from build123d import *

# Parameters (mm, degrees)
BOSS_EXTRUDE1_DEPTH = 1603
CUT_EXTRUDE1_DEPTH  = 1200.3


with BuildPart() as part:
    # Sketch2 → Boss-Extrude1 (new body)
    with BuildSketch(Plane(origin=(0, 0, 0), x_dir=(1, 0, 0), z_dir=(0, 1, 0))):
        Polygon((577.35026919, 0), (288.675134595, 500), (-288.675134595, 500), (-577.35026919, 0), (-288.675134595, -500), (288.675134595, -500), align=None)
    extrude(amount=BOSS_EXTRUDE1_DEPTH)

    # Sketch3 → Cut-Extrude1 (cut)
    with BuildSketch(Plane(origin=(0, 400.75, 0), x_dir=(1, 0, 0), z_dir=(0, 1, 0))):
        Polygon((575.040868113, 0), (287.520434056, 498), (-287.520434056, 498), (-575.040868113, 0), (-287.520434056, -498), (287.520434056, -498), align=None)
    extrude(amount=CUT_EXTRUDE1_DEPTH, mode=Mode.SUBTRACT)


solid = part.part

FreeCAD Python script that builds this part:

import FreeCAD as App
import Part
import Sketcher
from FreeCAD import Vector
Q = App.Units.Quantity


def add_polygon(sketch, points):
    """Adds a closed chain of lines whose ends are joined by coincident constraints."""
    first, n = sketch.GeometryCount, len(points)
    for a, b in zip(points, points[1:] + points[:1]):
        sketch.addGeometry(Part.LineSegment(App.Vector(*a, 0), App.Vector(*b, 0)), False)
    for i in range(n):
        sketch.addConstraint(Sketcher.Constraint("Coincident", first + i, 2, first + (i + 1) % n, 1))

doc = App.newDocument("Part")
body = doc.addObject("PartDesign::Body", "Body")

sketch1 = body.newObject("Sketcher::SketchObject", "Sketch")
sketch1.AttachmentSupport = (doc.getObject("XZ_Plane"), [""])
sketch1.MapMode = "FlatFace"
add_polygon(sketch1, [(577, 0), (289, -500), (-289, -500), (-577, 0), (-289, 500), (289, 500)])
sketch1.addConstraint(Sketcher.Constraint("Horizontal", 1))
sketch1.addConstraint(Sketcher.Constraint("Horizontal", 4))
sketch1.addConstraint(Sketcher.Constraint("Symmetric", 0, 2, 3, 2, -1, 1))
sketch1.addConstraint(Sketcher.Constraint("Symmetric", 2, 2, 5, 2, -1, 1))
sketch1.addConstraint(Sketcher.Constraint("PointOnObject", 2, 2, -1))
sketch1.addConstraint(Sketcher.Constraint("Parallel", 2, 5))
sketch1.addConstraint(Sketcher.Constraint("Vertical", 1, 2, 3, 2))
sketch1.addConstraint(Sketcher.Constraint("Angle", 0, Q("-120 deg")))
sketch1.addConstraint(Sketcher.Constraint("DistanceY", 0, 2, -1, 1, 500.0))
sketch1.addConstraint(Sketcher.Constraint("DistanceX", 1, 2, 1, 1, 577.350269))
pad1 = body.newObject("PartDesign::Pad", "Pad")
pad1.Profile = sketch1
pad1.Length = 1603
pad1.Reversed = True

sketch2 = body.newObject("Sketcher::SketchObject", "Sketch001")
sketch2.AttachmentSupport = (doc.getObject("XZ_Plane"), [""])
sketch2.MapMode = "FlatFace"
sketch2.AttachmentOffset = App.Placement(Vector(0, 0, -400.75), App.Rotation())
add_polygon(sketch2, [(575, 0), (288, -498), (-288, -498), (-575, 0), (-288, 498), (288, 498)])
sketch2.addConstraint(Sketcher.Constraint("Horizontal", 1))
sketch2.addConstraint(Sketcher.Constraint("Horizontal", 4))
sketch2.addConstraint(Sketcher.Constraint("Symmetric", 0, 2, 3, 2, -1, 1))
sketch2.addConstraint(Sketcher.Constraint("Symmetric", 2, 2, 5, 2, -1, 1))
sketch2.addConstraint(Sketcher.Constraint("PointOnObject", 2, 2, -1))
sketch2.addConstraint(Sketcher.Constraint("Parallel", 2, 5))
sketch2.addConstraint(Sketcher.Constraint("Vertical", 1, 2, 3, 2))
sketch2.addConstraint(Sketcher.Constraint("Angle", 0, Q("-120 deg")))
sketch2.addConstraint(Sketcher.Constraint("DistanceY", 0, 2, -1, 1, 498.0))
sketch2.addConstraint(Sketcher.Constraint("DistanceX", 1, 2, 1, 1, 575.040868))
pocket1 = body.newObject("PartDesign::Pocket", "Pocket")
pocket1.Profile = sketch2
pocket1.Length = 1200.3

doc.recompute()
